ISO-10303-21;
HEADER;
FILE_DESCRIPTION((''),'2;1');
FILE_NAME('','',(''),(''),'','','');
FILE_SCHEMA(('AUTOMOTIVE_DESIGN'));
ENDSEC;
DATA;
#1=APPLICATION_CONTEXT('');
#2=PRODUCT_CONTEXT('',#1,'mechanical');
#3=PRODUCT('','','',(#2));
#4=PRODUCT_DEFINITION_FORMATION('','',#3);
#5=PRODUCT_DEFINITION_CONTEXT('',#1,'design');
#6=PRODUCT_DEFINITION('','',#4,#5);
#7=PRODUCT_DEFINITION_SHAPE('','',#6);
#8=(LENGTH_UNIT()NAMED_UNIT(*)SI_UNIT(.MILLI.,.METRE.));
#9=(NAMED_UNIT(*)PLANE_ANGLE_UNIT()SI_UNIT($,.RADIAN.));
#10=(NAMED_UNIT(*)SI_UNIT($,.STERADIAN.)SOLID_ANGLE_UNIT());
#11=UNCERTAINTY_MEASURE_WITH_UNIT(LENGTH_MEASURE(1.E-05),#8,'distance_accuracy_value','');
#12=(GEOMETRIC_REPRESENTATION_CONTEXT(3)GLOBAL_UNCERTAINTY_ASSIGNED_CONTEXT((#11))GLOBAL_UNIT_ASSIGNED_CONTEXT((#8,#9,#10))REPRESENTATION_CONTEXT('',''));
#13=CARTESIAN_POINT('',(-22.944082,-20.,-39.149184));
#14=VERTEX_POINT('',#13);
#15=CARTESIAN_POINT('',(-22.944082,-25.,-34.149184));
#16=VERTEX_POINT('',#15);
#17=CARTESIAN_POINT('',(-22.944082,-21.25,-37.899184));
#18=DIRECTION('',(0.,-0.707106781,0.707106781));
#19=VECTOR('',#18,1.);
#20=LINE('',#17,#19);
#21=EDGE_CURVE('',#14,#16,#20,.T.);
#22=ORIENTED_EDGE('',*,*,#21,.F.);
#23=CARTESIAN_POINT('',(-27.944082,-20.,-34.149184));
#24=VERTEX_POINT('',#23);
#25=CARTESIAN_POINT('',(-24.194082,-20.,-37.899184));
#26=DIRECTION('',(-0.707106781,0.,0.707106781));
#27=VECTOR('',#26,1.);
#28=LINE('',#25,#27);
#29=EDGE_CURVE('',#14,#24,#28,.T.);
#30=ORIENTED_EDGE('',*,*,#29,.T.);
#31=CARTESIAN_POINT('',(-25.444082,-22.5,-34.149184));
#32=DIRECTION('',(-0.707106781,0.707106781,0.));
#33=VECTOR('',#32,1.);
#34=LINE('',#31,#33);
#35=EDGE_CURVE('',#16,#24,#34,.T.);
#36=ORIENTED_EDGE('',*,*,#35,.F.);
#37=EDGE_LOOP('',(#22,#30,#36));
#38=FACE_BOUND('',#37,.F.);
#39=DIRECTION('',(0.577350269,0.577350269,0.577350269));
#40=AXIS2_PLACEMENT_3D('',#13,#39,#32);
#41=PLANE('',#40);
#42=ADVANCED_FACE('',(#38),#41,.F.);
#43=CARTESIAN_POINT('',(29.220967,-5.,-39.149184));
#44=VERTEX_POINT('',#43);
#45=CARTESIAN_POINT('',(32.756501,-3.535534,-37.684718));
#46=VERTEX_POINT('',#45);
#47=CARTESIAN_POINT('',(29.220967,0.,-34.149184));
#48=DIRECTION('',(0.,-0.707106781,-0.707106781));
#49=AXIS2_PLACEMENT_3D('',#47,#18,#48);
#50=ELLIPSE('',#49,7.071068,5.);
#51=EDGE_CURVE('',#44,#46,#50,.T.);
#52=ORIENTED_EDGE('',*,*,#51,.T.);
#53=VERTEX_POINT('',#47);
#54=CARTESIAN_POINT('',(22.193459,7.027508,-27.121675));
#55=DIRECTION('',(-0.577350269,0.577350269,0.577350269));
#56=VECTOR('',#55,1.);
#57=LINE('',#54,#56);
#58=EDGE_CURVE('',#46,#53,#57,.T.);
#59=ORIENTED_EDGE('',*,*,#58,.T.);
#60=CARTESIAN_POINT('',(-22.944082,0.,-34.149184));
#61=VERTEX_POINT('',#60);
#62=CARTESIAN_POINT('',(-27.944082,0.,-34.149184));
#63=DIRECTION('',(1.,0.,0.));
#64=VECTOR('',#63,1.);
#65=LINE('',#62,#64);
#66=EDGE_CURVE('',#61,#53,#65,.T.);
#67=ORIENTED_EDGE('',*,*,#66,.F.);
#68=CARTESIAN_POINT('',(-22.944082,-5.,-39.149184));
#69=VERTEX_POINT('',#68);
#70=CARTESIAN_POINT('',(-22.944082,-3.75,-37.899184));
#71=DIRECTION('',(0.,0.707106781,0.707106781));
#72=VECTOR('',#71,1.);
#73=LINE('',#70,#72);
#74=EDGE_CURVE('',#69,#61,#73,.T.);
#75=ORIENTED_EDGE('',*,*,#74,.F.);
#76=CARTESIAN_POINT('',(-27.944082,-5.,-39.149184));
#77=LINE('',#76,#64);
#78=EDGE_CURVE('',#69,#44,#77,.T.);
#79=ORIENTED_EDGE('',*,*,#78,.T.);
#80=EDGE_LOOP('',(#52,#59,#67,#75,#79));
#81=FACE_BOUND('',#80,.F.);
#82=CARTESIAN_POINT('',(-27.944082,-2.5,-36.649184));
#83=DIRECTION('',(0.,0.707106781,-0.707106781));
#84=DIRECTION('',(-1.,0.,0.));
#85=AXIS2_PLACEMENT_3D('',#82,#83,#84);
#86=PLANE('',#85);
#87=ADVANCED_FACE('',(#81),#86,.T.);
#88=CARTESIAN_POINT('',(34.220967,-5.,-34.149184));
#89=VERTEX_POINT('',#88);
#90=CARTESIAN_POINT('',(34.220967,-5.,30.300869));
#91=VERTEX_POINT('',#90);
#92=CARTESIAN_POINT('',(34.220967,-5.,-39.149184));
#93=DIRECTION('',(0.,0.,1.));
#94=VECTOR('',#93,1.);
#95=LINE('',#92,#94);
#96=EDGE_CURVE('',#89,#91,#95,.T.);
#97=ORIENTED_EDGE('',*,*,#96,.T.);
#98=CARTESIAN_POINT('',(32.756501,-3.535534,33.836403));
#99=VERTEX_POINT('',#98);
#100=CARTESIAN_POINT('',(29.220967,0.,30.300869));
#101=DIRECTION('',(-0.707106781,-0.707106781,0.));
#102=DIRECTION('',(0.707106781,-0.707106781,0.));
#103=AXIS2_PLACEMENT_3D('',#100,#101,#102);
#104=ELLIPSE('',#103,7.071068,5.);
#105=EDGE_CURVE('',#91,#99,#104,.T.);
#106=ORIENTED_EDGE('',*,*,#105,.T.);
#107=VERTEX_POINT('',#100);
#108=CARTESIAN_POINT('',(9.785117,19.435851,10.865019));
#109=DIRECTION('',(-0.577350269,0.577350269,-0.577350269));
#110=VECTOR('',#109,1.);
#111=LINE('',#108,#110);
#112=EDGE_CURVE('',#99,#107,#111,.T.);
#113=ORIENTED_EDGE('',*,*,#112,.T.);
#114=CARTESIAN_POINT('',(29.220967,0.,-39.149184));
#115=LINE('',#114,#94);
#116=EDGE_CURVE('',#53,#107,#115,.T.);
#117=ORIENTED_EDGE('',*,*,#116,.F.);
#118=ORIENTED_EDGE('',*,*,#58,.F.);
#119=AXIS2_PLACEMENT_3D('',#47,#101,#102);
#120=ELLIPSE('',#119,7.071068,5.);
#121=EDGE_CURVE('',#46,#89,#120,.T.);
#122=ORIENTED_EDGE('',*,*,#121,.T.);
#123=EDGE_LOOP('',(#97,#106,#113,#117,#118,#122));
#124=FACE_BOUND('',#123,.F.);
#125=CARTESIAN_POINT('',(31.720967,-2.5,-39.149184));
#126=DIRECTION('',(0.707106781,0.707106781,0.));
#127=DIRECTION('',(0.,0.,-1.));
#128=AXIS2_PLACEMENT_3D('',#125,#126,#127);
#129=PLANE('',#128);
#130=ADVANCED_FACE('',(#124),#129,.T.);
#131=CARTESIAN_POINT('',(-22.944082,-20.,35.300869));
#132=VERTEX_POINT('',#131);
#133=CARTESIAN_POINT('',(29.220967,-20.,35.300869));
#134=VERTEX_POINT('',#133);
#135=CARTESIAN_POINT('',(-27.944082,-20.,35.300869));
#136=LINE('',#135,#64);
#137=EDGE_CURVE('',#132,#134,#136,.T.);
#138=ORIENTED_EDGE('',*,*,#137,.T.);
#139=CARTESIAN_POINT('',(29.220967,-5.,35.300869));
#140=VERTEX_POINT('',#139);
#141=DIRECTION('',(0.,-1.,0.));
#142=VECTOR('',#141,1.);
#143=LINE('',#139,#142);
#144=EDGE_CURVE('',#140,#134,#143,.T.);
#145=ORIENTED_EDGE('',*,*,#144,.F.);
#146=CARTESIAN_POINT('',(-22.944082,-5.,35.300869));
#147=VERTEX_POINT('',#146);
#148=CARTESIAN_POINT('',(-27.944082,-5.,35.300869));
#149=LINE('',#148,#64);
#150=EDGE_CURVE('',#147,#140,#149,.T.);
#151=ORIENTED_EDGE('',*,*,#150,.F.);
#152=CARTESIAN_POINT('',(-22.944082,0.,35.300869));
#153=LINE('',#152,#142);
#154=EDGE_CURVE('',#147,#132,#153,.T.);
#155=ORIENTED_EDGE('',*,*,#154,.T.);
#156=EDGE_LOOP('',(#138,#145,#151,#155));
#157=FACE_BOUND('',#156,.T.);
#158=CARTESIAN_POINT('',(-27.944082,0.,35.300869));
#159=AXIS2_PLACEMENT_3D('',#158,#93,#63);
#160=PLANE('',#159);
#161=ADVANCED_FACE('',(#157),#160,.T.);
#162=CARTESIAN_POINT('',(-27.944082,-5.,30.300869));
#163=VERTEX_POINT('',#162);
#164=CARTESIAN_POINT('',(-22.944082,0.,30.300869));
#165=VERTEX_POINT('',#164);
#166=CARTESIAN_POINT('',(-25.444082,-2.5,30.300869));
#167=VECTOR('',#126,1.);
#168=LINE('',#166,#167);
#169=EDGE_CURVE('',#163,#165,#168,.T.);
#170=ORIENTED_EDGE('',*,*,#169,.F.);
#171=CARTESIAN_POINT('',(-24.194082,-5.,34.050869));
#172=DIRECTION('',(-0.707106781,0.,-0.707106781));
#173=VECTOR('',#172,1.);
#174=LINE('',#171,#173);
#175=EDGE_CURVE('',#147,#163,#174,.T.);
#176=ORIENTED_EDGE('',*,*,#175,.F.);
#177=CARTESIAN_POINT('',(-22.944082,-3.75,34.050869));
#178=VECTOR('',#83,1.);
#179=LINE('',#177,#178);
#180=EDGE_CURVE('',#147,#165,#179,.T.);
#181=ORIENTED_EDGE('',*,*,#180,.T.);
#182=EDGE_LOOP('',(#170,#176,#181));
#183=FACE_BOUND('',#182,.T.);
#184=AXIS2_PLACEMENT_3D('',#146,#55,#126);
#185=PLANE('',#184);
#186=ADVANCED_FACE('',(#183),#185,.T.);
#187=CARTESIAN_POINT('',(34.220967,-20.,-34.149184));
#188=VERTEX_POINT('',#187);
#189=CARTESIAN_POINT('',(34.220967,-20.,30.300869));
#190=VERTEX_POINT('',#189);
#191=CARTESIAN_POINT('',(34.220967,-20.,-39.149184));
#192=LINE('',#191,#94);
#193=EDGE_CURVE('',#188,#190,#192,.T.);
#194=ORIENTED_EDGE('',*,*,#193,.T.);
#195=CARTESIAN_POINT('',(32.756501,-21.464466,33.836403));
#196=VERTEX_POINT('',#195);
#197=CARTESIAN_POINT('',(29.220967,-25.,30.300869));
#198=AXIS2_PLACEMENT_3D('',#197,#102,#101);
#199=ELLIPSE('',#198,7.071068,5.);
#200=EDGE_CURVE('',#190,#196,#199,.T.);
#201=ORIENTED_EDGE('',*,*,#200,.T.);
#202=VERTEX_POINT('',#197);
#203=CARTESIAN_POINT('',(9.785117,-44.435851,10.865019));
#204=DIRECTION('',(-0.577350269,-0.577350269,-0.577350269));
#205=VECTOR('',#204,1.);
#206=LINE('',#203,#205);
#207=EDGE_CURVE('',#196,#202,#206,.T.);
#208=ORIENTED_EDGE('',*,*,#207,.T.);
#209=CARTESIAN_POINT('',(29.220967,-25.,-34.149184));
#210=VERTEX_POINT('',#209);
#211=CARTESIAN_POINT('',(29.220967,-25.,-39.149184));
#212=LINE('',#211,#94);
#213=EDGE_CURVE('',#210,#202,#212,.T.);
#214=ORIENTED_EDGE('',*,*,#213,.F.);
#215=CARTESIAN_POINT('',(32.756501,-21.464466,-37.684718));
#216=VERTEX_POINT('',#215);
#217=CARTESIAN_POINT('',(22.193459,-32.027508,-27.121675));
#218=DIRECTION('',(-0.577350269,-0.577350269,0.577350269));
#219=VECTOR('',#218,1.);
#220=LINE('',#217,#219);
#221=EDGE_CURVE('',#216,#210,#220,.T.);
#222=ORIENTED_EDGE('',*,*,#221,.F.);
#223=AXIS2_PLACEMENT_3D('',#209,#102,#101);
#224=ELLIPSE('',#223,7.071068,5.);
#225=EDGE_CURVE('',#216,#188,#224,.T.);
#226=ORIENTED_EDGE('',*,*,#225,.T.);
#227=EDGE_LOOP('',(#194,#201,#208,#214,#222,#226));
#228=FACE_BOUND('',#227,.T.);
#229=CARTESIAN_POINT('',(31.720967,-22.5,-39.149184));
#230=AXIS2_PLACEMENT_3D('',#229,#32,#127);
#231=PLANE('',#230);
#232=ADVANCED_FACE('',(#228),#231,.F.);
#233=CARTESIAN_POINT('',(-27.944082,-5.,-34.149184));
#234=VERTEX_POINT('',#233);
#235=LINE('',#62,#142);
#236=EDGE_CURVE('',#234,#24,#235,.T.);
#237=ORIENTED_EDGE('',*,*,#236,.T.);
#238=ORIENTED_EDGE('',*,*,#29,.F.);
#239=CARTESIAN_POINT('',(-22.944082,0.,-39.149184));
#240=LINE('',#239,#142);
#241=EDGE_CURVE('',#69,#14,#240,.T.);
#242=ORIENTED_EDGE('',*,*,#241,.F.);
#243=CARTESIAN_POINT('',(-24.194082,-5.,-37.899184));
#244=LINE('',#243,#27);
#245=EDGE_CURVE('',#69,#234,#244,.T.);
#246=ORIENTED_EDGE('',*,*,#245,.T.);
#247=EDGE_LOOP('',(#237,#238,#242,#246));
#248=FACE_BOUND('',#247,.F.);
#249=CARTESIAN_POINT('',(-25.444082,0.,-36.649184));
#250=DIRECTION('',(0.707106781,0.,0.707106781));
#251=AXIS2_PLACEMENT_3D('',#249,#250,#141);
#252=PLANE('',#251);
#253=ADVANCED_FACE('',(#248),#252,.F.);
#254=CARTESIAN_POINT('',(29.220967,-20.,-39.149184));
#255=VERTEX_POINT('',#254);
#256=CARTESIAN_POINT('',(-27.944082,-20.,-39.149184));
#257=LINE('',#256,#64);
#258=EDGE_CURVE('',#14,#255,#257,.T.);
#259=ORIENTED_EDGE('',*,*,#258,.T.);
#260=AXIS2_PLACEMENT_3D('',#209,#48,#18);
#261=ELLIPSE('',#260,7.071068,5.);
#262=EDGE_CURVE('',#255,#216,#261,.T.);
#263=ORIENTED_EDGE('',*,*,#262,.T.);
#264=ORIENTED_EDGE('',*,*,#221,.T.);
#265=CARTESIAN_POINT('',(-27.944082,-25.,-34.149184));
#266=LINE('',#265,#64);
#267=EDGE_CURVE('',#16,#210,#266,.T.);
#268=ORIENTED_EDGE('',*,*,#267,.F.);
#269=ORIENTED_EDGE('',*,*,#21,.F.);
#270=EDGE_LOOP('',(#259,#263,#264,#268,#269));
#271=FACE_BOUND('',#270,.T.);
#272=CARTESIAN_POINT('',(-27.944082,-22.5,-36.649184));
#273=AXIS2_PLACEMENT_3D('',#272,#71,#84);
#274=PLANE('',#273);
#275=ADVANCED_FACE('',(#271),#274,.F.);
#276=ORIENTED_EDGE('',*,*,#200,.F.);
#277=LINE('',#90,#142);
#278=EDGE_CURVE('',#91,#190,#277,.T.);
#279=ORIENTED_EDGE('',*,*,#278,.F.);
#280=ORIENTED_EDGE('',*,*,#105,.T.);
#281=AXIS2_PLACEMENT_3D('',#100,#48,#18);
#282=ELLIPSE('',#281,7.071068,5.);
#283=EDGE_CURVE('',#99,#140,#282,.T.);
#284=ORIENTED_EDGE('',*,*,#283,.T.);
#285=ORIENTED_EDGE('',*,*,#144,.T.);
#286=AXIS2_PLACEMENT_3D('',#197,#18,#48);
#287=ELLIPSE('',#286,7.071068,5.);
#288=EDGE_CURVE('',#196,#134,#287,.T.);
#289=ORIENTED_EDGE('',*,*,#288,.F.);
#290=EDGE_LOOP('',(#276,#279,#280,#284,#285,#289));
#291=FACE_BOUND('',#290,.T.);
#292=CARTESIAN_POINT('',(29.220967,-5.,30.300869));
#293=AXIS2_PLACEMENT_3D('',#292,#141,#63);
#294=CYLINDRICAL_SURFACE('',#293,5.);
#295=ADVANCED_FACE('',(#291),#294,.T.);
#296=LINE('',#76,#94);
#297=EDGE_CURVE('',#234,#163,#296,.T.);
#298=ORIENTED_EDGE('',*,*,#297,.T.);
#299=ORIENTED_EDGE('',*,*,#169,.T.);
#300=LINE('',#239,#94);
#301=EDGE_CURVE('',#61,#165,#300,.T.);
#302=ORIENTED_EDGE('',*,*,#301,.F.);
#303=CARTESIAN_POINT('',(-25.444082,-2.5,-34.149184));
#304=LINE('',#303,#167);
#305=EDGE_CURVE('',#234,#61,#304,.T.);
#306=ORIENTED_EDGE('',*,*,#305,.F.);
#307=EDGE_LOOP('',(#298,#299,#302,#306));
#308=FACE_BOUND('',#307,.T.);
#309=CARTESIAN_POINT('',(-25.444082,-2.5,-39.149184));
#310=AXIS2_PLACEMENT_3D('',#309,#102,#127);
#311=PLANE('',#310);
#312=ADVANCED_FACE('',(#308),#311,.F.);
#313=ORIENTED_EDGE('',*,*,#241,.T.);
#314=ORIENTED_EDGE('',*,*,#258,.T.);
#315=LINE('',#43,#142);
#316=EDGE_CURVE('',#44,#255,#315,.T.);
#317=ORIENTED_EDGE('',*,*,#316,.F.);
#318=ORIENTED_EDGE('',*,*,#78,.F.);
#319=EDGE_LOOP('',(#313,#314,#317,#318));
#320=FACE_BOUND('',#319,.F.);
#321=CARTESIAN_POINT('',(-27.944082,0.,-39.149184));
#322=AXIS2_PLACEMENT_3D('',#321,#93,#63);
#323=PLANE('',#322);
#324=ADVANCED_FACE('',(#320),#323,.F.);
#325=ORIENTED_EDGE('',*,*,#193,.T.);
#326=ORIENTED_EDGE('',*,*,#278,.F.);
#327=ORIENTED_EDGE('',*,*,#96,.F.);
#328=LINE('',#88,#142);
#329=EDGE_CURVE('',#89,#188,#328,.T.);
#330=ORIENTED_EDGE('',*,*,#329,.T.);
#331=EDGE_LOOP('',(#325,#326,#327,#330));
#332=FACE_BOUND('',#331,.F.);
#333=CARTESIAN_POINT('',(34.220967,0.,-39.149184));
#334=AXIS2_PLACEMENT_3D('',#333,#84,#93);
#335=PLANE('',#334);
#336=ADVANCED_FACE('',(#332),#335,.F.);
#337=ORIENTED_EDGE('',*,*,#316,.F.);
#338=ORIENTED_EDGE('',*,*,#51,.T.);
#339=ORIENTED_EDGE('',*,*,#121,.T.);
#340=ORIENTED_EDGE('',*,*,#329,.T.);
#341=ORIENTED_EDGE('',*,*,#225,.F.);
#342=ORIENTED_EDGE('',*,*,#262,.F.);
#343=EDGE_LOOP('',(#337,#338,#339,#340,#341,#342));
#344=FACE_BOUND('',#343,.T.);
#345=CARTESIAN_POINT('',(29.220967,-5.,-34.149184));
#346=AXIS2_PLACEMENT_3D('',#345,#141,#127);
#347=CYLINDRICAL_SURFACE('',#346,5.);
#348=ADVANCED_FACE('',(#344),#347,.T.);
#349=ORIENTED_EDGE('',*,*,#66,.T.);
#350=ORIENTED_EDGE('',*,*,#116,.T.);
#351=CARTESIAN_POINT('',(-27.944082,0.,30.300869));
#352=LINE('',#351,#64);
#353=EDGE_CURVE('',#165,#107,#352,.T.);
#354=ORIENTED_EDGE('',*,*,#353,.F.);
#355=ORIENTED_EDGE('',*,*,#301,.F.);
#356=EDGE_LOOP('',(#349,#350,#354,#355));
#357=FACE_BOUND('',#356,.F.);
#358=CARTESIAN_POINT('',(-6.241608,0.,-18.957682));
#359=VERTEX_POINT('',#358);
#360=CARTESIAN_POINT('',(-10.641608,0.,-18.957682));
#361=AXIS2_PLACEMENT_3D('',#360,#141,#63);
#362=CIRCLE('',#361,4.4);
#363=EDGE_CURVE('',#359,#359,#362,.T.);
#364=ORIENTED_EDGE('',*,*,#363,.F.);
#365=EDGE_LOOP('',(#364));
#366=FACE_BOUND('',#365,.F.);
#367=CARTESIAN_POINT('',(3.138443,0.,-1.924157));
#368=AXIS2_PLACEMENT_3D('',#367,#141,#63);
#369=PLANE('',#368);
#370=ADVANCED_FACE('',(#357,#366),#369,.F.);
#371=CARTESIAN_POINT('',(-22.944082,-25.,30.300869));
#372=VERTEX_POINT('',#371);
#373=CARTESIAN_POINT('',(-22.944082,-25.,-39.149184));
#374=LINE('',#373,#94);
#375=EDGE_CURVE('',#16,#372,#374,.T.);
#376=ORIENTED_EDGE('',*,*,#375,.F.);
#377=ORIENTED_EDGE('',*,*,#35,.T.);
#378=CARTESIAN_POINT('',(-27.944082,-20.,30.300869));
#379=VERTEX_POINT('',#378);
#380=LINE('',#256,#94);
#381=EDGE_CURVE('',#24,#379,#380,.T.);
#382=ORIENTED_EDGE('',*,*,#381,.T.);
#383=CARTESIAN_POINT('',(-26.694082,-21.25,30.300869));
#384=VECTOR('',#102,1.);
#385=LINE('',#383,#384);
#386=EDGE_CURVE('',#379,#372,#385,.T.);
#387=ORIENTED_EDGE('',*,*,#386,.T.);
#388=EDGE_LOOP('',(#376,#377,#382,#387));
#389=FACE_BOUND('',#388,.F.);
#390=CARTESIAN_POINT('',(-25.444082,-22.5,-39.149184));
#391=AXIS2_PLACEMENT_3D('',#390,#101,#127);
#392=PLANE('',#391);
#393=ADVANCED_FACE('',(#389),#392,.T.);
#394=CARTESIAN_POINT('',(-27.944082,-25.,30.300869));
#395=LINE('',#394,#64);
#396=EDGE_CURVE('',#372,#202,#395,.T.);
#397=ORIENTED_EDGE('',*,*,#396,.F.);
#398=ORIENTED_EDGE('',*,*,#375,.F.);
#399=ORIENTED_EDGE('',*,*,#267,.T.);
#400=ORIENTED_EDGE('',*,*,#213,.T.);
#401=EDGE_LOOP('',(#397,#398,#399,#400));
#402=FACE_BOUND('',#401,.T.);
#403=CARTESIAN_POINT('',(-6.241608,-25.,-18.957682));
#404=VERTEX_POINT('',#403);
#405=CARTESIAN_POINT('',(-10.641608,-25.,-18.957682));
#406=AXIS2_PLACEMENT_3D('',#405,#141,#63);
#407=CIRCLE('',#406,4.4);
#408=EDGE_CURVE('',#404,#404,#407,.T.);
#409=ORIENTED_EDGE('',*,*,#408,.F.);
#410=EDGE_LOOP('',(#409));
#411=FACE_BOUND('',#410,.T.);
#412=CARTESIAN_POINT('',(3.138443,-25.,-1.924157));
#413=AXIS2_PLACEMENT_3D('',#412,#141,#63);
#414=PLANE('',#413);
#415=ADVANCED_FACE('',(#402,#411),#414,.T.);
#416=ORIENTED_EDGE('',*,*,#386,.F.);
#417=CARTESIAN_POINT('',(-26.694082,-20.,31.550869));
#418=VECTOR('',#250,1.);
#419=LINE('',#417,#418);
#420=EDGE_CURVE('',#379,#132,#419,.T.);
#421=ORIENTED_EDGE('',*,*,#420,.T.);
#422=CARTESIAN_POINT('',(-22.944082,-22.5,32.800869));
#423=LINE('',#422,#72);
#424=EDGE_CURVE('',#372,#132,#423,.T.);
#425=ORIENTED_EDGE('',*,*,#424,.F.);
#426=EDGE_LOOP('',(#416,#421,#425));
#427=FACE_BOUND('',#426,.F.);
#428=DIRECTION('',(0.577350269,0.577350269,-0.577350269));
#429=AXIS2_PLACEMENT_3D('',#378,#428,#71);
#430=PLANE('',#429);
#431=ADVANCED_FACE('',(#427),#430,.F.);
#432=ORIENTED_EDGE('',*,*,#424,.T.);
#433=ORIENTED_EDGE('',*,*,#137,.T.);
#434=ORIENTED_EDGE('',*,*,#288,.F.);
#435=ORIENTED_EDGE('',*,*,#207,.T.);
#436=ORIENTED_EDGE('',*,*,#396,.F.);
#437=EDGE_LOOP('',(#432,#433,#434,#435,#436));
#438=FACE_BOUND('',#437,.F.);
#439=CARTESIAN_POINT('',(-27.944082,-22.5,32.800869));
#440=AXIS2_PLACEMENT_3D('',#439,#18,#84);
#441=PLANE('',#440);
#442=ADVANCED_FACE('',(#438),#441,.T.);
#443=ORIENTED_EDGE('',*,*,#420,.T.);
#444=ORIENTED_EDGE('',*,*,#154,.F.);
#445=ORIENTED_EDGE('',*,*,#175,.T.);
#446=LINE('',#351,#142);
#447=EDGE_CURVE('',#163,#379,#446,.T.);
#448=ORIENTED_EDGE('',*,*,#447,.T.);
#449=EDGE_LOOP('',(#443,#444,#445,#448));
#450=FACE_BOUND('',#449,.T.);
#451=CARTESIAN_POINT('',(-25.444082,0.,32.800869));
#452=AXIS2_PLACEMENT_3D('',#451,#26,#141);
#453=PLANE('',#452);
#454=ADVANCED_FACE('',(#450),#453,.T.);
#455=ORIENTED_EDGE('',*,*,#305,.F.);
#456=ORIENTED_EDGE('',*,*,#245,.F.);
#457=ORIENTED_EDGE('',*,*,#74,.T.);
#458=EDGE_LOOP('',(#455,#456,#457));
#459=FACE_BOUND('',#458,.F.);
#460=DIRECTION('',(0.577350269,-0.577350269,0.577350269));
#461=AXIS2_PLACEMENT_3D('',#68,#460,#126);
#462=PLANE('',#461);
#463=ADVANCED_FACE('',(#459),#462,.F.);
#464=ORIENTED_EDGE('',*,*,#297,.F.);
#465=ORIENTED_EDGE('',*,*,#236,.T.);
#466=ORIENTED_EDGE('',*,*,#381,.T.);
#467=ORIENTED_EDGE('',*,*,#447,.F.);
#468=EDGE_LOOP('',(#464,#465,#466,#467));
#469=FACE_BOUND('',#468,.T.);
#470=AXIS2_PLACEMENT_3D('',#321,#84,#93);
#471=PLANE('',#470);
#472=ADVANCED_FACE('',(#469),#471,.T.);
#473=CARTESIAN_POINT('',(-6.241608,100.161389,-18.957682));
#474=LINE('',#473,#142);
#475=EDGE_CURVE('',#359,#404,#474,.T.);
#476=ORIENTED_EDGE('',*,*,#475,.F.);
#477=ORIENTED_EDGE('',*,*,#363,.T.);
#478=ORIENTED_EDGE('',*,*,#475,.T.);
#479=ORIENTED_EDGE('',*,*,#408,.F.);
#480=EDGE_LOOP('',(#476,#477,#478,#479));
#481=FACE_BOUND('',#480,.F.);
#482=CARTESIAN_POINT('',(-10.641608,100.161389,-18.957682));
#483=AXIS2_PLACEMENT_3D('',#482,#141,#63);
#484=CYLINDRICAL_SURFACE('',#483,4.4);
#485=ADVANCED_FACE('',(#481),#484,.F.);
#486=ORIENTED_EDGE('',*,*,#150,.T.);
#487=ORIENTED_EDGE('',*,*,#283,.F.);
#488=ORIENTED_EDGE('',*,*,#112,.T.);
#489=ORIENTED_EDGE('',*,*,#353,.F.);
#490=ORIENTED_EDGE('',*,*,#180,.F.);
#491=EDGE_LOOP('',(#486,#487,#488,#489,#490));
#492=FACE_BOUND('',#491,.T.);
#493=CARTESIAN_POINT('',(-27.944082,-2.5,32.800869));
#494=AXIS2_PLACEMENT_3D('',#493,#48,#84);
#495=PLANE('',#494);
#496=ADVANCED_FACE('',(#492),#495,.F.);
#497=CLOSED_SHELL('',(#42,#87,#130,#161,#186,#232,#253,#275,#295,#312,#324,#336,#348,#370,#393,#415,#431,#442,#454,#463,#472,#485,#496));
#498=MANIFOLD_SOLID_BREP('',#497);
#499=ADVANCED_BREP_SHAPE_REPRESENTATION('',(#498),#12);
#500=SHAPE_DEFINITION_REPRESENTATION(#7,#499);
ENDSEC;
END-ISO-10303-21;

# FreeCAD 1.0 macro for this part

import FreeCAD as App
import Part
import Sketcher
Q = App.Units.Quantity


def edges_at(feature, points):
    """Names of the edges that pass closest to the given points."""
    edges = feature.Shape.Edges
    near = lambda p: min(range(len(edges)), key=lambda i: edges[i].distToShape(Part.Vertex(*p))[0])
    return sorted({f"Edge{near(p) + 1}" for p in points})


def add_polygon(sketch, points):
    """Adds a closed chain of lines whose ends are joined by coincident constraints."""
    first, n = sketch.GeometryCount, len(points)
    for a, b in zip(points, points[1:] + points[:1]):
        sketch.addGeometry(Part.LineSegment(App.Vector(*a, 0), App.Vector(*b, 0)), False)
    for i in range(n):
        sketch.addConstraint(Sketcher.Constraint("Coincident", first + i, 2, first + (i + 1) % n, 1))

doc = App.newDocument("Part")
body = doc.addObject("PartDesign::Body", "Body")

sketch1 = doc.addObject("Sketcher::SketchObject", "Sketch")
body.addObject(sketch1)
sketch1.AttachmentSupport = (doc.XZ_Plane, [""])
sketch1.MapMode = "FlatFace"
add_polygon(sketch1, [(-28, 35), (-28, -39), (34, -39), (34, 35)])
sketch1.addConstraint([
    Sketcher.Constraint("Vertical", 0),
    Sketcher.Constraint("Horizontal", 1),
    Sketcher.Constraint("Vertical", 2),
    Sketcher.Constraint("Horizontal", 3),
    Sketcher.Constraint("DistanceX", 1, 1, 1, 2, Q("62.16505 mm")),
    Sketcher.Constraint("DistanceY", 0, 2, 0, 1, Q("74.450053 mm")),
    Sketcher.Constraint("DistanceY", -1, 1, 2, 2, Q("35.300869 mm")),
    Sketcher.Constraint("DistanceX", 0, 2, -1, 1, Q("27.944082 mm")),
])
pad1 = doc.addObject("PartDesign::Pad", "Pad")
body.addObject(pad1)
pad1.Profile = sketch1
pad1.Length = 25
doc.recompute()

chamfer = doc.addObject("PartDesign::Chamfer", "Chamfer")
body.addObject(chamfer)
chamfer.Base = (pad1, edges_at(pad1, [
    (-27.944, 0, -1.924),
    (3.138, -25, 35.301),
    (-27.944, -25, -1.924),
    (3.138, -25, -39.149),
    (34.221, -25, -1.924),
    (-27.944, -12.5, 35.301),
    (-27.944, -12.5, -39.149),
    (3.138, 0, -39.149),
    (34.221, 0, -1.924),
    (3.138, 0, 35.301),
]))
chamfer.Size = 5

sketch2 = doc.addObject("Sketcher::SketchObject", "Sketch001")
body.addObject(sketch2)
sketch2.AttachmentSupport = (doc.XZ_Plane, [""])
sketch2.MapMode = "FlatFace"
sketch2.addGeometry(Part.Circle(App.Vector(-10.6, -19, 0), App.Vector(0, 0, 1), 4.4), False)
sketch2.addConstraint([
    Sketcher.Constraint("Diameter", 0, Q("8.8 mm")),
    Sketcher.Constraint("DistanceX", 0, 3, -1, 1, Q("10.641608 mm")),
    Sketcher.Constraint("DistanceY", 0, 3, -1, 1, Q("18.957682 mm")),
])
doc.recompute()
hole = doc.addObject("PartDesign::Hole", "Hole")
body.addObject(hole)
hole.Profile = sketch2
hole.ThreadType = "None"
hole.Diameter = 8.8
hole.DepthType = "ThroughAll"
hole.Reversed = True
doc.recompute()

fillet = doc.addObject("PartDesign::Fillet", "Fillet")
body.addObject(fillet)
fillet.Base = (hole, edges_at(hole, [(34.221, -12.5, -39.149)]))
fillet.Radius = 5
doc.recompute()

fillet2 = doc.addObject("PartDesign::Fillet", "Fillet001")
body.addObject(fillet2)
fillet2.Base = (fillet, edges_at(fillet, [(34.221, -12.5, 35.301)]))
fillet2.Radius = 5

doc.recompute()
